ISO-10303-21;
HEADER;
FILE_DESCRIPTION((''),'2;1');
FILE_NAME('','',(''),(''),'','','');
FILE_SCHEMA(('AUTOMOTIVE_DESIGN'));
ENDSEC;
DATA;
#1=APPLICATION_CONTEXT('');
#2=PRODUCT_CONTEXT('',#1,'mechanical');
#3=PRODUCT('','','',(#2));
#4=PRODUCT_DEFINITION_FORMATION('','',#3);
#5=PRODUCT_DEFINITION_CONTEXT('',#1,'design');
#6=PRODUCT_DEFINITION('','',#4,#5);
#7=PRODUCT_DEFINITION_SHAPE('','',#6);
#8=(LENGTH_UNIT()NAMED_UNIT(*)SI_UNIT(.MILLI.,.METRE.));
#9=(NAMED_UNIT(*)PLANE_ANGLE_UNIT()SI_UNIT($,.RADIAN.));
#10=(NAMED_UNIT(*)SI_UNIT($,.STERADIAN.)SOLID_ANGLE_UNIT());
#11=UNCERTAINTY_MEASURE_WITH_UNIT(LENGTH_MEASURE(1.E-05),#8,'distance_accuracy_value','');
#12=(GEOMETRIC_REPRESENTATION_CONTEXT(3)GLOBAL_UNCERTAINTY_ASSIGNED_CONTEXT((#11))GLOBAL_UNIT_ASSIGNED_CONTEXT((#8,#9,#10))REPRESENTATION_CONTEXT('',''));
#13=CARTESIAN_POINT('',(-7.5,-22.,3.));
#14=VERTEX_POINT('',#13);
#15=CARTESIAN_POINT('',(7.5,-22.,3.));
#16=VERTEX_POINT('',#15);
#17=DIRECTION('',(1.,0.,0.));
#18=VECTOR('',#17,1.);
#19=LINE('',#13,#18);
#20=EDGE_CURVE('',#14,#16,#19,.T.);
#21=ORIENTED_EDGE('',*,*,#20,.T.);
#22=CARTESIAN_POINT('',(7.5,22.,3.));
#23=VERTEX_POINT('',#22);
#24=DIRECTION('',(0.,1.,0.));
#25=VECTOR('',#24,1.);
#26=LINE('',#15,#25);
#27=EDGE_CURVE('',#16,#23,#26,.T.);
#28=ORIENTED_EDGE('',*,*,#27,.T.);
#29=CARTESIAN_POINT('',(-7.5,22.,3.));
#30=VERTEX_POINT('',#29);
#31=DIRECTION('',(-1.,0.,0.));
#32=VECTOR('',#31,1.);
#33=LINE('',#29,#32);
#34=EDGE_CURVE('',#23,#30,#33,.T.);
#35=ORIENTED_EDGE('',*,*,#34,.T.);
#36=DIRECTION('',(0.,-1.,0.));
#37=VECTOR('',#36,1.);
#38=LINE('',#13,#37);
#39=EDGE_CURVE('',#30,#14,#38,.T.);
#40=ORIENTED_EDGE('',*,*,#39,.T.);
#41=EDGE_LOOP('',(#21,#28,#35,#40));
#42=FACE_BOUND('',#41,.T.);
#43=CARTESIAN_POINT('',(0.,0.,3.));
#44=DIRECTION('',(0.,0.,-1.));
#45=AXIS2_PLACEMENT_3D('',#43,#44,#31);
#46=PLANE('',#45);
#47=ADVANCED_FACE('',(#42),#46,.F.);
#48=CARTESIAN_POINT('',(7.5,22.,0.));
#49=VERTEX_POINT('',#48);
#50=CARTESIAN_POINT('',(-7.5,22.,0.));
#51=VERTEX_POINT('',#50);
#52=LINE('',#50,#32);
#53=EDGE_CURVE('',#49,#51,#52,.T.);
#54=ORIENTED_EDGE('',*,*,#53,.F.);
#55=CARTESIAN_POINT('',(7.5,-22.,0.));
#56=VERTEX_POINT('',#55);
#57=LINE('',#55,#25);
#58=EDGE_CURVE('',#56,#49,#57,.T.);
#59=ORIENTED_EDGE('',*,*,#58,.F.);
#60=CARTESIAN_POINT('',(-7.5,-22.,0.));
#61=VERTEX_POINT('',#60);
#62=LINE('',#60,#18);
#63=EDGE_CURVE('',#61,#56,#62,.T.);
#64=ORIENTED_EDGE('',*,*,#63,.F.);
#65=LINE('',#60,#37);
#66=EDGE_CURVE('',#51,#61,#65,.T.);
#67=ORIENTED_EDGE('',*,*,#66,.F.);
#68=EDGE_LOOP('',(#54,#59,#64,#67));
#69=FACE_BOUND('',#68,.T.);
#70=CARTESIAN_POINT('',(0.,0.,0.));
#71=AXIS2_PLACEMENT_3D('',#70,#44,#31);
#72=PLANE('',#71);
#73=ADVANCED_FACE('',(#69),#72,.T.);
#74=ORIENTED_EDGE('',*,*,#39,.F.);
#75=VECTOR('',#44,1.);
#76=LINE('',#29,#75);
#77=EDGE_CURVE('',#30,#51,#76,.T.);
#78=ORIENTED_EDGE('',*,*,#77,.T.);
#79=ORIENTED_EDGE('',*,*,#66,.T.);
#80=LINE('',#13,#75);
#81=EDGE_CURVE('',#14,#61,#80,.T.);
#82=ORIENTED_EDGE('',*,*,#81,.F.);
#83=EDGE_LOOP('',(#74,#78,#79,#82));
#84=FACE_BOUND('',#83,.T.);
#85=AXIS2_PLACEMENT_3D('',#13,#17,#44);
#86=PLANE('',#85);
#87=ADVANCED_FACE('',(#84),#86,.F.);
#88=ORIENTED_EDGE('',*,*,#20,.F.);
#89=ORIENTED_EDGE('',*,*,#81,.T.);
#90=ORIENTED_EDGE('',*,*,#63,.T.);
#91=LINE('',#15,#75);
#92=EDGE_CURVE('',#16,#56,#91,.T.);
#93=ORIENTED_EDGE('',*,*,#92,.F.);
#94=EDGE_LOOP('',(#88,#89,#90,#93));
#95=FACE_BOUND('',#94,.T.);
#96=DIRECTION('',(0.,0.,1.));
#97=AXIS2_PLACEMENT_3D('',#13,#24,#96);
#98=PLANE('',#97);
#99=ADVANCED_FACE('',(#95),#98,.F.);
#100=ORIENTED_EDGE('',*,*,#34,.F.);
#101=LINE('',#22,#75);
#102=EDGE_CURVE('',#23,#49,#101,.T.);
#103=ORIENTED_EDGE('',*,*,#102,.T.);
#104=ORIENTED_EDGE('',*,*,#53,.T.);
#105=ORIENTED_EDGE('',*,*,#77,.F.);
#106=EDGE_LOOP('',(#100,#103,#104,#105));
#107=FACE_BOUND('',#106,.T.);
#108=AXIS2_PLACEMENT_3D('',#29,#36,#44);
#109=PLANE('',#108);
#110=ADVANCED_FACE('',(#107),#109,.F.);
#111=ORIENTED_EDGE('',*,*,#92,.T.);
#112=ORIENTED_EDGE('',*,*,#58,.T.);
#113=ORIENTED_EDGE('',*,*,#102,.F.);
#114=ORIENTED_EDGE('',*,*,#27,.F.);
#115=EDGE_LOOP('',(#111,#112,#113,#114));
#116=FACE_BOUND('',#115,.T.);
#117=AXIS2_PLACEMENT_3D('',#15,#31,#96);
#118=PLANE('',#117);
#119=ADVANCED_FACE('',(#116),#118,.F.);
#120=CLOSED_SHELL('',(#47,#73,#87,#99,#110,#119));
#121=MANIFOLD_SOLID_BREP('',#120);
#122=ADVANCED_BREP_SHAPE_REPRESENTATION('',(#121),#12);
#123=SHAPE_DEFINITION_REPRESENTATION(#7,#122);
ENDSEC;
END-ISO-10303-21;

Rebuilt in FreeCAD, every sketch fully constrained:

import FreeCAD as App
import Part
import Sketcher
from FreeCAD import Vector


def add_polygon(sketch, points):
    """Adds a closed chain of lines whose ends are joined by coincident constraints."""
    first, n = sketch.GeometryCount, len(points)
    for a, b in zip(points, points[1:] + points[:1]):
        sketch.addGeometry(Part.LineSegment(App.Vector(*a, 0), App.Vector(*b, 0)), False)
    for i in range(n):
        sketch.addConstraint(Sketcher.Constraint("Coincident", first + i, 2, first + (i + 1) % n, 1))

doc = App.newDocument("Part")
body = doc.addObject("PartDesign::Body", "Body")

# Sketch on XY plane
sketch1 = doc.addObject("Sketcher::SketchObject", "Sketch")
body.addObject(sketch1)
sketch1.AttachmentSupport = (doc.XY_Plane, [""])
sketch1.MapMode = "FlatFace"
add_polygon(sketch1, [(-7.5, 22), (-7.5, -22), (7.5, -22), (7.5, 22)])  # lines 0-3
sketch1.addConstraint(Sketcher.Constraint("Vertical", 0))
sketch1.addConstraint(Sketcher.Constraint("Horizontal", 1))
sketch1.addConstraint(Sketcher.Constraint("Vertical", 2))
sketch1.addConstraint(Sketcher.Constraint("Horizontal", 3))
sketch1.addConstraint(Sketcher.Constraint("Symmetric", 0, 2, 2, 2, -1, 1))
sketch1.addConstraint(Sketcher.Constraint("DistanceX", 1, 1, 1, 2, 15.0))
sketch1.addConstraint(Sketcher.Constraint("DistanceY", 0, 2, 0, 1, 44.0))
pad1 = doc.addObject("PartDesign::Pad", "Pad")
body.addObject(pad1)
pad1.Profile = sketch1
pad1.Length = 3

doc.recompute()
